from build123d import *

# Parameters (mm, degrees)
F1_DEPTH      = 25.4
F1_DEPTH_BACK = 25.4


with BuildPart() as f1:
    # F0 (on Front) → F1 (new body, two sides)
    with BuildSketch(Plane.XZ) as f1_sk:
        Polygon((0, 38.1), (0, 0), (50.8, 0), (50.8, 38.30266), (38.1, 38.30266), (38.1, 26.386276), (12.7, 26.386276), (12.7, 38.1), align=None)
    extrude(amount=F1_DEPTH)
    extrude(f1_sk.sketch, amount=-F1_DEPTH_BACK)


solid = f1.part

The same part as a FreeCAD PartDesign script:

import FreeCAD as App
import Part
import Sketcher
from FreeCAD import Vector
Q = App.Units.Quantity


def add_polygon(sketch, points):
    """Adds a closed chain of lines whose ends are joined by coincident constraints."""
    first, n = sketch.GeometryCount, len(points)
    for a, b in zip(points, points[1:] + points[:1]):
        sketch.addGeometry(Part.LineSegment(App.Vector(*a, 0), App.Vector(*b, 0)), False)
    for i in range(n):
        sketch.addConstraint(Sketcher.Constraint("Coincident", first + i, 2, first + (i + 1) % n, 1))

doc = App.newDocument("Part")
body = doc.addObject("PartDesign::Body", "Body")

sketch1 = body.newObject("Sketcher::SketchObject", "Sketch")
sketch1.AttachmentSupport = (doc.getObject("XZ_Plane"), [""])
sketch1.MapMode = "FlatFace"
add_polygon(sketch1, [(0, 38.1), (0, 0), (50.8, 0), (50.8, 38.30266), (38.1, 38.30266), (38.1, 26.386276), (12.7, 26.386276), (12.7, 38.1)])
sketch1.addConstraint(Sketcher.Constraint("Vertical", 0))
sketch1.addConstraint(Sketcher.Constraint("Horizontal", 1))
sketch1.addConstraint(Sketcher.Constraint("Vertical", 2))
sketch1.addConstraint(Sketcher.Constraint("Horizontal", 3))
sketch1.addConstraint(Sketcher.Constraint("Vertical", 4))
sketch1.addConstraint(Sketcher.Constraint("Horizontal", 5))
sketch1.addConstraint(Sketcher.Constraint("Vertical", 6))
sketch1.addConstraint(Sketcher.Constraint("Horizontal", 7))
sketch1.addConstraint(Sketcher.Constraint("Coincident", 0, 2, -1, 1))
sketch1.addConstraint(Sketcher.Constraint("Equal", 3, 7))
sketch1.addConstraint(Sketcher.Constraint("DistanceX", 1, 1, 1, 2, Q("2 in")))
sketch1.addConstraint(Sketcher.Constraint("DistanceX", 5, 2, 5, 1, Q("1 in")))
sketch1.addConstraint(Sketcher.Constraint("DistanceY", 0, 2, 0, 1, Q("1.5 in")))
sketch1.addConstraint(Sketcher.Constraint("DistanceY", 2, 1, 2, 2, 38.30266))
sketch1.addConstraint(Sketcher.Constraint("DistanceY", 4, 2, 4, 1, 11.916384))
pad1 = body.newObject("PartDesign::Pad", "Pad")
pad1.Profile = sketch1
pad1.Type = "TwoLengths"
pad1.Length = Q("1 in")
pad1.Length2 = Q("1 in")

doc.recompute()
